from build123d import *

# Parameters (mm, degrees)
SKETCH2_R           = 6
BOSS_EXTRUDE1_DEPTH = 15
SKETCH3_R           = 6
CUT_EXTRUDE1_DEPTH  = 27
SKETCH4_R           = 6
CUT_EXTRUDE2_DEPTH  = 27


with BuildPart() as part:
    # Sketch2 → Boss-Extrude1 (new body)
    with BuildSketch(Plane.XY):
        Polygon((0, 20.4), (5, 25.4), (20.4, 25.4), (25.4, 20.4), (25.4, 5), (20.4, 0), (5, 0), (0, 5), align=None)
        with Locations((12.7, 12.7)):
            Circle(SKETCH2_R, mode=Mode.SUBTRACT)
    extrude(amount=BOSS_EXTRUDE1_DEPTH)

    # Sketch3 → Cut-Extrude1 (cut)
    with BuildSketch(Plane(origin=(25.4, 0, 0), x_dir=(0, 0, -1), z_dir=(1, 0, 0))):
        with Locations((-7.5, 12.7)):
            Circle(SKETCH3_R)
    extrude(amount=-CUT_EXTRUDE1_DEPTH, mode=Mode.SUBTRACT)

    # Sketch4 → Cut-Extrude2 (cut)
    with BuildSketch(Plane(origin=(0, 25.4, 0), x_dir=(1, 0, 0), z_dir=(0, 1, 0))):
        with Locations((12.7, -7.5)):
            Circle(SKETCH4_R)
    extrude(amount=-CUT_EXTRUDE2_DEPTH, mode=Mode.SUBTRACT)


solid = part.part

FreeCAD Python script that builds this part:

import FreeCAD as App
import Part
import Sketcher

V = App.Vector
Q = App.Units.Quantity

doc = App.newDocument("Part")
body = doc.addObject("PartDesign::Body", "Body")

sketch1 = body.newObject("Sketcher::SketchObject", "Sketch")
sketch1.AttachmentSupport = (doc.getObject("XY_Plane"), [""])
sketch1.MapMode = "FlatFace"
sketch1.addGeometry(Part.LineSegment(V(5, 25.4, 0), V(0, 20.4, 0)), False)
sketch1.addGeometry(Part.LineSegment(V(0, 20.4, 0), V(0, 5, 0)), False)
sketch1.addGeometry(Part.LineSegment(V(0, 5, 0), V(5, 0, 0)), False)
sketch1.addGeometry(Part.LineSegment(V(5, 0, 0), V(20.4, 0, 0)), False)
sketch1.addGeometry(Part.LineSegment(V(20.4, 0, 0), V(25.4, 5, 0)), False)
sketch1.addGeometry(Part.LineSegment(V(25.4, 5, 0), V(25.4, 20.4, 0)), False)
sketch1.addGeometry(Part.LineSegment(V(25.4, 20.4, 0), V(20.4, 25.4, 0)), False)
sketch1.addGeometry(Part.LineSegment(V(20.4, 25.4, 0), V(5, 25.4, 0)), False)
sketch1.addGeometry(Part.Circle(V(12.7, 12.7, 0), V(0, 0, 1), 6), False)
sketch1.addConstraint(Sketcher.Constraint("Coincident", 0, 2, 1, 1))
sketch1.addConstraint(Sketcher.Constraint("Coincident", 1, 2, 2, 1))
sketch1.addConstraint(Sketcher.Constraint("Coincident", 2, 2, 3, 1))
sketch1.addConstraint(Sketcher.Constraint("Coincident", 3, 2, 4, 1))
sketch1.addConstraint(Sketcher.Constraint("Coincident", 4, 2, 5, 1))
sketch1.addConstraint(Sketcher.Constraint("Coincident", 5, 2, 6, 1))
sketch1.addConstraint(Sketcher.Constraint("Coincident", 6, 2, 7, 1))
sketch1.addConstraint(Sketcher.Constraint("Coincident", 7, 2, 0, 1))
sketch1.addConstraint(Sketcher.Constraint("Vertical", 1))
sketch1.addConstraint(Sketcher.Constraint("Horizontal", 3))
sketch1.addConstraint(Sketcher.Constraint("Vertical", 5))
sketch1.addConstraint(Sketcher.Constraint("Horizontal", 7))
sketch1.addConstraint(Sketcher.Constraint("PointOnObject", 0, 2, -2))
sketch1.addConstraint(Sketcher.Constraint("PointOnObject", 2, 2, -1))
sketch1.addConstraint(Sketcher.Constraint("Perpendicular", 0, 2))
sketch1.addConstraint(Sketcher.Constraint("Perpendicular", 2, 4))
sketch1.addConstraint(Sketcher.Constraint("Perpendicular", 4, 6))
sketch1.addConstraint(Sketcher.Constraint("Horizontal", 1, 2, 4, 2))
sketch1.addConstraint(Sketcher.Constraint("Horizontal", 0, 2, 5, 2))
sketch1.addConstraint(Sketcher.Constraint("Vertical", 3, 2, 6, 2))
sketch1.addConstraint(Sketcher.Constraint("Vertical", 2, 2, 7, 2))
sketch1.addConstraint(Sketcher.Constraint("Equal", 7, 1))
sketch1.addConstraint(Sketcher.Constraint("Diameter", 8, Q("12 mm")))
sketch1.addConstraint(Sketcher.Constraint("DistanceX", 3, 1, 3, 2, Q("15.4 mm")))
sketch1.addConstraint(Sketcher.Constraint("DistanceY", -1, 1, 1, 2, Q("5 mm")))
sketch1.addConstraint(Sketcher.Constraint("DistanceX", -1, 1, 8, 3, Q("12.7 mm")))
sketch1.addConstraint(Sketcher.Constraint("DistanceY", -1, 1, 8, 3, Q("12.7 mm")))
pad1 = body.newObject("PartDesign::Pad", "Pad")
pad1.Profile = sketch1
pad1.Length = 15

sketch2 = body.newObject("Sketcher::SketchObject", "Sketch001")
sketch2.AttachmentSupport = (doc.getObject("YZ_Plane"), [""])
sketch2.MapMode = "FlatFace"
sketch2.AttachmentOffset = App.Placement(V(0, 0, 25.4), App.Rotation())
sketch2.addGeometry(Part.Circle(V(12.7, 7.5, 0), V(0, 0, 1), 6), False)
sketch2.addConstraint(Sketcher.Constraint("Diameter", 0, Q("12 mm")))
sketch2.addConstraint(Sketcher.Constraint("DistanceX", -1, 1, 0, 3, Q("12.7 mm")))
sketch2.addConstraint(Sketcher.Constraint("DistanceY", -1, 1, 0, 3, Q("7.5 mm")))
pocket1 = body.newObject("PartDesign::Pocket", "Pocket")
pocket1.Profile = sketch2
pocket1.Length = 27

sketch3 = body.newObject("Sketcher::SketchObject", "Sketch002")
sketch3.AttachmentSupport = (doc.getObject("XZ_Plane"), [""])
sketch3.MapMode = "FlatFace"
sketch3.AttachmentOffset = App.Placement(V(0, 0, -25.4), App.Rotation())
sketch3.addGeometry(Part.Circle(V(12.7, 7.5, 0), V(0, 0, 1), 6), False)
sketch3.addConstraint(Sketcher.Constraint("Diameter", 0, Q("12 mm")))
sketch3.addConstraint(Sketcher.Constraint("DistanceX", -1, 1, 0, 3, Q("12.7 mm")))
sketch3.addConstraint(Sketcher.Constraint("DistanceY", -1, 1, 0, 3, Q("7.5 mm")))
pocket2 = body.newObject("PartDesign::Pocket", "Pocket001")
pocket2.Profile = sketch3
pocket2.Length = 27
pocket2.Reversed = True

doc.recompute()
